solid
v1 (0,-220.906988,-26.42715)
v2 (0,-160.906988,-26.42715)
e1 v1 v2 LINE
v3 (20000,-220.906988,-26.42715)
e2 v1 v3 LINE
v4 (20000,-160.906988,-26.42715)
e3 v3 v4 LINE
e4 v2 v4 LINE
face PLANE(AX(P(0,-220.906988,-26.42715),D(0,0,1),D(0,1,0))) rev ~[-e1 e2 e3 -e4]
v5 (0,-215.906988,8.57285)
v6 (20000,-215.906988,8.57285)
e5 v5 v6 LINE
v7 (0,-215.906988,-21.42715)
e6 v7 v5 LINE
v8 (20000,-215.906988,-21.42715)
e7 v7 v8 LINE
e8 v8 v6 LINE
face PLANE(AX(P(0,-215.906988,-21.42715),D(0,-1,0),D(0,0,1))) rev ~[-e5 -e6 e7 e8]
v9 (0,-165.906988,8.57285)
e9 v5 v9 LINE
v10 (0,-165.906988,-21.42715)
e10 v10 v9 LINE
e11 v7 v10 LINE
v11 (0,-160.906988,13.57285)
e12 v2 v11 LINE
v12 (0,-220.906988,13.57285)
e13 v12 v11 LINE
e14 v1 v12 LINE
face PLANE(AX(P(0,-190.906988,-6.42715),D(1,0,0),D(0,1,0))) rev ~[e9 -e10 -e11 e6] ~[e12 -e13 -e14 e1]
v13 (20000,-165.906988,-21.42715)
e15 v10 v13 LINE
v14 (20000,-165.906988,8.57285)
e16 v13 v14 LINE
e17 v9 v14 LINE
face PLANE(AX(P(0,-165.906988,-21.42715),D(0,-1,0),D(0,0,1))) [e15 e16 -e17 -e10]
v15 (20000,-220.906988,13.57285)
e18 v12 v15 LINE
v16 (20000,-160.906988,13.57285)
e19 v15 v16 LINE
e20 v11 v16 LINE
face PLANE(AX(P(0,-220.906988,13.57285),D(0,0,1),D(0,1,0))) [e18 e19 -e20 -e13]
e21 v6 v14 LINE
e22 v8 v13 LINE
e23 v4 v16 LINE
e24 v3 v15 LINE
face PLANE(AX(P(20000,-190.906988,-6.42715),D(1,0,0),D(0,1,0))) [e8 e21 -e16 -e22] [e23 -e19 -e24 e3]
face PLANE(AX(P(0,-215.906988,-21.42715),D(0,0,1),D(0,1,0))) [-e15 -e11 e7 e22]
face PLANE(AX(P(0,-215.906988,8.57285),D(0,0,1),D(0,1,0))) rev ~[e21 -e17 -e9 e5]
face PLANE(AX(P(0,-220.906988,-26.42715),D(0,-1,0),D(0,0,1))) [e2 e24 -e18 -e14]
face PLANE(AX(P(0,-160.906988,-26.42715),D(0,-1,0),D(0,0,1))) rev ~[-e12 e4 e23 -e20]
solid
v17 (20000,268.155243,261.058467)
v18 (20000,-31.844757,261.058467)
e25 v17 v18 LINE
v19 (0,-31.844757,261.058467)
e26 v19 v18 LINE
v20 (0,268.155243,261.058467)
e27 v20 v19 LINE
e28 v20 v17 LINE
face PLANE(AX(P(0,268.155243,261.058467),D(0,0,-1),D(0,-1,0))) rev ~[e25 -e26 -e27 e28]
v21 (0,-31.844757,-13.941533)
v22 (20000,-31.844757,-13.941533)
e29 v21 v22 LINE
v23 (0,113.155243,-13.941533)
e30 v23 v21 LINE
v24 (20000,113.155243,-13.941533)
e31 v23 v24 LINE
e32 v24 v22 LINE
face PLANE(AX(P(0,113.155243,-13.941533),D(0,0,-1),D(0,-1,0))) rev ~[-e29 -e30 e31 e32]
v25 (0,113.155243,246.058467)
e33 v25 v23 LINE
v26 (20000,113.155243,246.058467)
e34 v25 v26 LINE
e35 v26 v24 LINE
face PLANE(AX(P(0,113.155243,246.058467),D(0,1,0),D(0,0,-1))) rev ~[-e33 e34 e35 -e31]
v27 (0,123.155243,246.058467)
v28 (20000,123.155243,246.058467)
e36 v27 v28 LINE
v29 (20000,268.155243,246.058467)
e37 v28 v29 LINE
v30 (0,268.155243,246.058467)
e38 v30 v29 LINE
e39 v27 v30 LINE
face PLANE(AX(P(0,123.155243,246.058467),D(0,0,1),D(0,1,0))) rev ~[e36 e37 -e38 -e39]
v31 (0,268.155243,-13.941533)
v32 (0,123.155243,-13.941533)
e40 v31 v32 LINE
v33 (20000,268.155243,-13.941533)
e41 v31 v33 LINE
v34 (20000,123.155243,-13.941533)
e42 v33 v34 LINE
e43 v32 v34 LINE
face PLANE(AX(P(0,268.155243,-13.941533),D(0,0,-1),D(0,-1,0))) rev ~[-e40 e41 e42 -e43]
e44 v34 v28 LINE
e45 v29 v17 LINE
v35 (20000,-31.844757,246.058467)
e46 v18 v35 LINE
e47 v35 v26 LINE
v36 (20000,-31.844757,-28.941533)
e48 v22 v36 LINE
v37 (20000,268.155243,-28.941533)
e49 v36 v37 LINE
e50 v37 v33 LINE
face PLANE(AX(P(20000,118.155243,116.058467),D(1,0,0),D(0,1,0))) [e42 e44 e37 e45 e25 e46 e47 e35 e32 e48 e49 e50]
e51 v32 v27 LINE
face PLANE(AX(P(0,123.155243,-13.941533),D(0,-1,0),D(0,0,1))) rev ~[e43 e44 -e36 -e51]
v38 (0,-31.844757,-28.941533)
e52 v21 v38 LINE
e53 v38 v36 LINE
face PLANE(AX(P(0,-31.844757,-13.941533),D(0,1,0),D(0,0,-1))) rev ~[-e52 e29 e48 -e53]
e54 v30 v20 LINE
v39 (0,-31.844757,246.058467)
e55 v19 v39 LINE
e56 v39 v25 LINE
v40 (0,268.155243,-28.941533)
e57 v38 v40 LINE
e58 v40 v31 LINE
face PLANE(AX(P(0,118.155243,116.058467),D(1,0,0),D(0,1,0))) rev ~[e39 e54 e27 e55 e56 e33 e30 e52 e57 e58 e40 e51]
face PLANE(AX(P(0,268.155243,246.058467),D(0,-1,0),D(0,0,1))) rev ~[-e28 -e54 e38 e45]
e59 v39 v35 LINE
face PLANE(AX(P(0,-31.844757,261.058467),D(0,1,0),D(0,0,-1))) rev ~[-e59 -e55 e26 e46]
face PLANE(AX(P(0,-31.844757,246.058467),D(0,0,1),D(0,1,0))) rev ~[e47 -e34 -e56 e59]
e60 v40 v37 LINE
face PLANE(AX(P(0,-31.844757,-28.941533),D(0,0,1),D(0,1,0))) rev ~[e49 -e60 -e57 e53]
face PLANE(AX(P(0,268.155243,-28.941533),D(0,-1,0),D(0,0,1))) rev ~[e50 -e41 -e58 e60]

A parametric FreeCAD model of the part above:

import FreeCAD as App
import Part
import Sketcher

V = App.Vector


def add_polygon(sketch, points):
    """Adds a closed chain of lines whose ends are joined by coincident constraints."""
    first, n = sketch.GeometryCount, len(points)
    for a, b in zip(points, points[1:] + points[:1]):
        sketch.addGeometry(Part.LineSegment(App.Vector(*a, 0), App.Vector(*b, 0)), False)
    for i in range(n):
        sketch.addConstraint(Sketcher.Constraint("Coincident", first + i, 2, first + (i + 1) % n, 1))

doc = App.newDocument("Part")
params = doc.addObject("Spreadsheet::Sheet", "Params")
for row, (alias, value) in enumerate([
    ("sketch1_width", "300 mm"),
    ("sketch1_width2", "145 mm"),
    ("sketch1_height", "15 mm"),
    ("sketch1_height2", "260 mm"),
    ("pad1_length", "20000 mm"),
    ("sketch2_width", "60 mm"),
    ("sketch2_width2", "50 mm"),
    ("sketch2_height", "40 mm"),
    ("sketch2_height2", "30 mm"),
    ("pad2_length", "20000 mm"),
], start=1):
    params.set(f"A{row}", alias)
    params.set(f"B{row}", "=" + value)
    params.setAlias(f"B{row}", alias)

body = doc.addObject("PartDesign::Body", "Body")

sketch1 = body.newObject("Sketcher::SketchObject", "Sketch")
sketch1.AttachmentSupport = (doc.getObject("YZ_Plane"), [""])
sketch1.MapMode = "FlatFace"
add_polygon(sketch1, [(-32, -14), (-32, -29), (268, -29), (268, -14), (123, -14), (123, 246), (268, 246), (268, 261), (-32, 261), (-32, 246), (113, 246), (113, -14)])
sketch1.addConstraint(Sketcher.Constraint("Vertical", 0))
sketch1.addConstraint(Sketcher.Constraint("Horizontal", 1))
sketch1.addConstraint(Sketcher.Constraint("Vertical", 2))
sketch1.addConstraint(Sketcher.Constraint("Horizontal", 3))
sketch1.addConstraint(Sketcher.Constraint("Vertical", 4))
sketch1.addConstraint(Sketcher.Constraint("Horizontal", 5))
sketch1.addConstraint(Sketcher.Constraint("Vertical", 6))
sketch1.addConstraint(Sketcher.Constraint("Horizontal", 7))
sketch1.addConstraint(Sketcher.Constraint("Vertical", 8))
sketch1.addConstraint(Sketcher.Constraint("Horizontal", 9))
sketch1.addConstraint(Sketcher.Constraint("Vertical", 10))
sketch1.addConstraint(Sketcher.Constraint("Horizontal", 11))
sketch1.addConstraint(Sketcher.Constraint("Horizontal", 5, 2, 8, 2))
sketch1.addConstraint(Sketcher.Constraint("Horizontal", 3, 2, 10, 2))
sketch1.addConstraint(Sketcher.Constraint("Vertical", 2, 2, 5, 2))
sketch1.addConstraint(Sketcher.Constraint("Vertical", 0, 2, 7, 2))
sketch1.addConstraint(Sketcher.Constraint("Equal", 5, 9))
sketch1.addConstraint(Sketcher.Constraint("Equal", 2, 6))
sketch1.addConstraint(Sketcher.Constraint("DistanceX", 1, 1, 1, 2, 300.0))
sketch1.addConstraint(Sketcher.Constraint("DistanceX", 3, 2, 3, 1, 145.0))
sketch1.addConstraint(Sketcher.Constraint("DistanceY", 0, 2, 0, 1, 15.0))
sketch1.addConstraint(Sketcher.Constraint("DistanceY", 4, 1, 4, 2, 260.0))
sketch1.addConstraint(Sketcher.Constraint("DistanceX", 0, 2, -1, 1, 31.844757))
sketch1.addConstraint(Sketcher.Constraint("DistanceY", 0, 2, -1, 1, 28.941533))
sketch1.setExpression("Constraints[30]", "Params.sketch1_width")
sketch1.setExpression("Constraints[31]", "Params.sketch1_width2")
sketch1.setExpression("Constraints[32]", "Params.sketch1_height")
sketch1.setExpression("Constraints[33]", "Params.sketch1_height2")
pad1 = body.newObject("PartDesign::Pad", "Pad")
pad1.Profile = sketch1
pad1.setExpression("Length", "Params.pad1_length")
body2 = doc.addObject("PartDesign::Body", "Body001")

sketch2 = body2.newObject("Sketcher::SketchObject", "Sketch001")
sketch2.AttachmentSupport = (doc.getObject("YZ_Plane001"), [""])
sketch2.MapMode = "FlatFace"
add_polygon(sketch2, [(-221, 14), (-221, -26), (-161, -26), (-161, 14)])
add_polygon(sketch2, [(-166, -21), (-216, -21), (-216, 9), (-166, 9)])
sketch2.addConstraint(Sketcher.Constraint("Vertical", 0))
sketch2.addConstraint(Sketcher.Constraint("Horizontal", 1))
sketch2.addConstraint(Sketcher.Constraint("Vertical", 2))
sketch2.addConstraint(Sketcher.Constraint("Horizontal", 3))
sketch2.addConstraint(Sketcher.Constraint("Horizontal", 4))
sketch2.addConstraint(Sketcher.Constraint("Vertical", 5))
sketch2.addConstraint(Sketcher.Constraint("Horizontal", 6))
sketch2.addConstraint(Sketcher.Constraint("Vertical", 7))
sketch2.addConstraint(Sketcher.Constraint("DistanceX", 1, 1, 1, 2, 60.0))
sketch2.addConstraint(Sketcher.Constraint("DistanceX", 4, 2, 4, 1, 50.0))
sketch2.addConstraint(Sketcher.Constraint("DistanceY", 0, 2, 0, 1, 40.0))
sketch2.addConstraint(Sketcher.Constraint("DistanceY", 5, 1, 5, 2, 30.0))
sketch2.addConstraint(Sketcher.Constraint("DistanceX", 0, 2, 4, 2, 5.0))
sketch2.addConstraint(Sketcher.Constraint("DistanceY", 0, 2, 4, 2, 5.0))
sketch2.addConstraint(Sketcher.Constraint("DistanceX", 0, 2, -1, 1, 220.906988))
sketch2.addConstraint(Sketcher.Constraint("DistanceY", 0, 2, -1, 1, 26.42715))
sketch2.setExpression("Constraints[16]", "Params.sketch2_width")
sketch2.setExpression("Constraints[17]", "Params.sketch2_width2")
sketch2.setExpression("Constraints[18]", "Params.sketch2_height")
sketch2.setExpression("Constraints[19]", "Params.sketch2_height2")
pad2 = body2.newObject("PartDesign::Pad", "Pad001")
pad2.Profile = sketch2
pad2.setExpression("Length", "Params.pad2_length")

doc.recompute()
